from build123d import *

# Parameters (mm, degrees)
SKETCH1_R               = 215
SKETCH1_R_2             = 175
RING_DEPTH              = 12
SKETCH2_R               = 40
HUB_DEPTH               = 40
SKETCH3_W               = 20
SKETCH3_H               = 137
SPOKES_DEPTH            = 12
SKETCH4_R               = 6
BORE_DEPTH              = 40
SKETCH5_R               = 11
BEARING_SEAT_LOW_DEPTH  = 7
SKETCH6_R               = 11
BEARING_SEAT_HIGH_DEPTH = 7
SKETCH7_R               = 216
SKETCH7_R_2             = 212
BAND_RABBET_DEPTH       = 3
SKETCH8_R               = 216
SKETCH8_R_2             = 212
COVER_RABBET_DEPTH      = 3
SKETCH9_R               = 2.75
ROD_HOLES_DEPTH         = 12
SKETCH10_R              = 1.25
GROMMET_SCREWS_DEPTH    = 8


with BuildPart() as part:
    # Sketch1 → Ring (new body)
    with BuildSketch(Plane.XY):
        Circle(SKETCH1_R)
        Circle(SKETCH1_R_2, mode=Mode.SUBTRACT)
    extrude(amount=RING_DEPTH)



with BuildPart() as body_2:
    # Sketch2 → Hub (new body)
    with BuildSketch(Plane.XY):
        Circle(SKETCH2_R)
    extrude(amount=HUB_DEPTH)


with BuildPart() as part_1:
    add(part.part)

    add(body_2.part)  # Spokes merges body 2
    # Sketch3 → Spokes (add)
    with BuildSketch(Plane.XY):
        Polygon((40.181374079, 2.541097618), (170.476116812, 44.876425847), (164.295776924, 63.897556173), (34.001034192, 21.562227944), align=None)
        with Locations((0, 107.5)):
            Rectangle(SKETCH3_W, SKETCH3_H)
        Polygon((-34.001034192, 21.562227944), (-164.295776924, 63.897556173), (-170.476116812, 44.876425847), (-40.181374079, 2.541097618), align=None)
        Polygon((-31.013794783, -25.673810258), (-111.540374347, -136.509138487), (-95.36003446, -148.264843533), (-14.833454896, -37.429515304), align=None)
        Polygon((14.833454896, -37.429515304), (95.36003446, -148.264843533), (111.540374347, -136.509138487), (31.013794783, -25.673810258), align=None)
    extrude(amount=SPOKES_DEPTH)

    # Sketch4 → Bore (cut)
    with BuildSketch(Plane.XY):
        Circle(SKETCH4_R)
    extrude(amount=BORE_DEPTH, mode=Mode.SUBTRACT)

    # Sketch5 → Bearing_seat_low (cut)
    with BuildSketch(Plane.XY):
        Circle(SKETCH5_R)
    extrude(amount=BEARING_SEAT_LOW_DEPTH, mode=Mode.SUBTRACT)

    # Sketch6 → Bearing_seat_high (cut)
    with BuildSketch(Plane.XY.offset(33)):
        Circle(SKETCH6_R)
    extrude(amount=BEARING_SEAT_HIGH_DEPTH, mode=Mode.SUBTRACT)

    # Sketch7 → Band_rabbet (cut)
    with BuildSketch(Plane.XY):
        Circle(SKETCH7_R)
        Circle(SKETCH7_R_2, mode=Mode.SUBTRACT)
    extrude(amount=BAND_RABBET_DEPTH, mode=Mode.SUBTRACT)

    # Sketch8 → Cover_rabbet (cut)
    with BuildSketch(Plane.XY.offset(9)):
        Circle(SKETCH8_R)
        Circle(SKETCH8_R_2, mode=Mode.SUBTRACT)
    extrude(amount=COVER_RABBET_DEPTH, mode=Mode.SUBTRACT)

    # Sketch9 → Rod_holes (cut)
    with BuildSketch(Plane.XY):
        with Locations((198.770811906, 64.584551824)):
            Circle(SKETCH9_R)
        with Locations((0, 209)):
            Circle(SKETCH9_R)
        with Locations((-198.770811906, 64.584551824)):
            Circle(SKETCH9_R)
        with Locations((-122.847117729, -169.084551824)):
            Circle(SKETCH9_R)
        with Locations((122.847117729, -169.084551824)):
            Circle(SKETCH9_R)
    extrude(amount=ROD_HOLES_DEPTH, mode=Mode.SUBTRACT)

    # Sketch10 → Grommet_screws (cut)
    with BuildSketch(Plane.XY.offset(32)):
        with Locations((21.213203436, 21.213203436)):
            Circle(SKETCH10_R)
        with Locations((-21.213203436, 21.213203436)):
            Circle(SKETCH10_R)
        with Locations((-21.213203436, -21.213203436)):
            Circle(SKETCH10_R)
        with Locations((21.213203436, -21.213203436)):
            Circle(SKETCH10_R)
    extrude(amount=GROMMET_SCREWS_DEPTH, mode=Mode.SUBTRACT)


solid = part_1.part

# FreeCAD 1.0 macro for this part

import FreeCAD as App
import Part
import Sketcher
from FreeCAD import Vector
Q = App.Units.Quantity


def add_polygon(sketch, points):
    """Adds a closed chain of lines whose ends are joined by coincident constraints."""
    first, n = sketch.GeometryCount, len(points)
    for a, b in zip(points, points[1:] + points[:1]):
        sketch.addGeometry(Part.LineSegment(App.Vector(*a, 0), App.Vector(*b, 0)), False)
    for i in range(n):
        sketch.addConstraint(Sketcher.Constraint("Coincident", first + i, 2, first + (i + 1) % n, 1))

doc = App.newDocument("Part")
params = doc.addObject("Spreadsheet::Sheet", "Params")
for row, (alias, value) in enumerate([
    ("sketch1_diameter", "430 mm"),
    ("sketch1_diameter2", "350 mm"),
    ("pad1_length", "12 mm"),
    ("sketch2_diameter", "80 mm"),
    ("pad2_length", "40 mm"),
    ("sketch3_width", "20 mm"),
    ("sketch3_height", "137 mm"),
    ("sketch3_length", "137 mm"),
    ("sketch3_length2", "20 mm"),
    ("pad3_length", "12 mm"),
    ("sketch4_diameter", "12 mm"),
    ("pocket1_length", "40 mm"),
    ("sketch5_diameter", "22 mm"),
    ("pocket2_length", "7 mm"),
    ("sketch6_diameter", "22 mm"),
    ("pocket3_length", "7 mm"),
    ("sketch7_diameter", "432 mm"),
    ("sketch7_diameter2", "424 mm"),
    ("pocket4_length", "3 mm"),
    ("sketch8_diameter", "432 mm"),
    ("sketch8_diameter2", "424 mm"),
    ("pocket5_length", "3 mm"),
    ("sketch9_diameter", "5.5 mm"),
    ("pocket6_length", "12 mm"),
    ("sketch10_diameter", "2.5 mm"),
    ("pocket7_length", "8 mm"),
], start=1):
    params.set(f"A{row}", alias)
    params.set(f"B{row}", "=" + value)
    params.setAlias(f"B{row}", alias)

body = doc.addObject("PartDesign::Body", "Body")

# Sketch on XY plane
sketch1 = body.newObject("Sketcher::SketchObject", "Sketch")
sketch1.AttachmentSupport = (doc.getObject("XY_Plane"), [""])
sketch1.MapMode = "FlatFace"
sketch1.addGeometry([
    Part.Circle(Vector(0, 0, 0), Vector(0, 0, 1), 215),
    Part.Circle(Vector(0, 0, 0), Vector(0, 0, 1), 175),
], False)
sketch1.addConstraint([
    Sketcher.Constraint("Coincident", 0, 3, -1, 1),
    Sketcher.Constraint("Coincident", 1, 3, -1, 1),
    Sketcher.Constraint("Diameter", 0, 430.0),
    Sketcher.Constraint("Diameter", 1, 350.0),
])
sketch1.setExpression("Constraints[2]", "Params.sketch1_diameter")
sketch1.setExpression("Constraints[3]", "Params.sketch1_diameter2")
pad1 = body.newObject("PartDesign::Pad", "Pad")
pad1.Profile = sketch1
pad1.setExpression("Length", "Params.pad1_length")
body2 = doc.addObject("PartDesign::Body", "Body001")

# Sketch on XY plane
sketch2 = body2.newObject("Sketcher::SketchObject", "Sketch001")
sketch2.AttachmentSupport = (doc.getObject("XY_Plane001"), [""])
sketch2.MapMode = "FlatFace"
sketch2.addGeometry(Part.Circle(Vector(0, 0, 0), Vector(0, 0, 1), 40), False)
sketch2.addConstraint([
    Sketcher.Constraint("Coincident", 0, 3, -1, 1),
    Sketcher.Constraint("Diameter", 0, 80.0),
])
sketch2.setExpression("Constraints[1]", "Params.sketch2_diameter")
pad2 = body2.newObject("PartDesign::Pad", "Pad001")
pad2.Profile = sketch2
pad2.setExpression("Length", "Params.pad2_length")
body.AllowCompound = True
doc.recompute()

boolean = body.newObject("PartDesign::Boolean", "Boolean")
boolean.Type = "Fuse"
boolean.addObjects([body2])

# Sketch on XY plane
sketch3 = body.newObject("Sketcher::SketchObject", "Sketch002")
sketch3.AttachmentSupport = (doc.getObject("XY_Plane"), [""])
sketch3.MapMode = "FlatFace"
add_polygon(sketch3, [(40, 3), (170, 45), (164, 64), (34, 22)])  # lines 0-3
add_polygon(sketch3, [(-10, 176), (-10, 39), (10, 39), (10, 176)])  # lines 4-7
add_polygon(sketch3, [(-34, 22), (-164, 64), (-170, 45), (-40, 3)])  # lines 8-11
add_polygon(sketch3, [(-31, -26), (-112, -137), (-95, -148), (-15, -37)])  # lines 12-15
add_polygon(sketch3, [(15, -37), (95, -148), (112, -137), (31, -26)])  # lines 16-19
sketch3.addConstraint([
    Sketcher.Constraint("Vertical", 4),
    Sketcher.Constraint("Horizontal", 5),
    Sketcher.Constraint("Vertical", 6),
    Sketcher.Constraint("Horizontal", 7),
    Sketcher.Constraint("Symmetric", 1, 2, 8, 2, -2),
    Sketcher.Constraint("Symmetric", 0, 2, 9, 2, -2),
    Sketcher.Constraint("Symmetric", 3, 2, 10, 2, -2),
    Sketcher.Constraint("Symmetric", 2, 2, 11, 2, -2),
    Sketcher.Constraint("Symmetric", 13, 2, 16, 2, -2),
    Sketcher.Constraint("Symmetric", 12, 2, 17, 2, -2),
    Sketcher.Constraint("Symmetric", 15, 2, 18, 2, -2),
    Sketcher.Constraint("Symmetric", 14, 2, 19, 2, -2),
    Sketcher.Constraint("Perpendicular", 0, 1),
    Sketcher.Constraint("Perpendicular", 1, 2),
    Sketcher.Constraint("Perpendicular", 2, 3),
    Sketcher.Constraint("Perpendicular", 12, 13),
    Sketcher.Constraint("Perpendicular", 13, 14),
    Sketcher.Constraint("Perpendicular", 14, 15),
    Sketcher.Constraint("Equal", 10, 12),
    Sketcher.Constraint("Equal", 11, 13),
    Sketcher.Constraint("DistanceX", 5, 1, 5, 2, 20.0),
    Sketcher.Constraint("DistanceY", 4, 2, 4, 1, 137.0),
    Sketcher.Constraint("Angle", 0, Q("18 deg")),
    Sketcher.Constraint("Angle", 12, Q("-126 deg")),
    Sketcher.Constraint("Distance", 0, 137.0),
    Sketcher.Constraint("Distance", 1, 20.0),
    Sketcher.Constraint("DistanceX", 4, 2, -1, 1, 10.0),
    Sketcher.Constraint("DistanceY", -1, 1, 4, 2, 39.0),
    Sketcher.Constraint("DistanceX", 12, 2, 10, 2, 71.359),
    Sketcher.Constraint("DistanceY", 12, 2, -1, 1, 136.509138),
    Sketcher.Constraint("DistanceX", 8, 2, 2, 2, 198.296811),
    Sketcher.Constraint("DistanceY", 13, 2, 10, 2, 150.805941),
])
sketch3.setExpression("Constraints[40]", "Params.sketch3_width")
sketch3.setExpression("Constraints[41]", "Params.sketch3_height")
sketch3.setExpression("Constraints[44]", "Params.sketch3_length")
sketch3.setExpression("Constraints[45]", "Params.sketch3_length2")
pad3 = body.newObject("PartDesign::Pad", "Pad002")
pad3.Profile = sketch3
pad3.setExpression("Length", "Params.pad3_length")

# Sketch on XY plane
sketch4 = body.newObject("Sketcher::SketchObject", "Sketch003")
sketch4.AttachmentSupport = (doc.getObject("XY_Plane"), [""])
sketch4.MapMode = "FlatFace"
sketch4.addGeometry(Part.Circle(Vector(0, 0, 0), Vector(0, 0, 1), 6), False)
sketch4.addConstraint([
    Sketcher.Constraint("Coincident", 0, 3, -1, 1),
    Sketcher.Constraint("Diameter", 0, 12.0),
])
sketch4.setExpression("Constraints[1]", "Params.sketch4_diameter")
pocket1 = body.newObject("PartDesign::Pocket", "Pocket")
pocket1.Profile = sketch4
pocket1.setExpression("Length", "Params.pocket1_length")
pocket1.Reversed = True

# Sketch on XY plane
sketch5 = body.newObject("Sketcher::SketchObject", "Sketch004")
sketch5.AttachmentSupport = (doc.getObject("XY_Plane"), [""])
sketch5.MapMode = "FlatFace"
sketch5.addGeometry(Part.Circle(Vector(0, 0, 0), Vector(0, 0, 1), 11), False)
sketch5.addConstraint([
    Sketcher.Constraint("Coincident", 0, 3, -1, 1),
    Sketcher.Constraint("Diameter", 0, 22.0),
])
sketch5.setExpression("Constraints[1]", "Params.sketch5_diameter")
pocket2 = body.newObject("PartDesign::Pocket", "Pocket001")
pocket2.Profile = sketch5
pocket2.setExpression("Length", "Params.pocket2_length")
pocket2.Reversed = True

# Sketch on XY plane
sketch6 = body.newObject("Sketcher::SketchObject", "Sketch005")
sketch6.AttachmentSupport = (doc.getObject("XY_Plane"), [""])
sketch6.MapMode = "FlatFace"
sketch6.AttachmentOffset = App.Placement(Vector(0, 0, 33), App.Rotation())
sketch6.addGeometry(Part.Circle(Vector(0, 0, 0), Vector(0, 0, 1), 11), False)
sketch6.addConstraint([
    Sketcher.Constraint("Coincident", 0, 3, -1, 1),
    Sketcher.Constraint("Diameter", 0, 22.0),
])
sketch6.setExpression("Constraints[1]", "Params.sketch6_diameter")
pocket3 = body.newObject("PartDesign::Pocket", "Pocket002")
pocket3.Profile = sketch6
pocket3.setExpression("Length", "Params.pocket3_length")
pocket3.Reversed = True

# Sketch on XY plane
sketch7 = body.newObject("Sketcher::SketchObject", "Sketch006")
sketch7.AttachmentSupport = (doc.getObject("XY_Plane"), [""])
sketch7.MapMode = "FlatFace"
sketch7.addGeometry([
    Part.Circle(Vector(0, 0, 0), Vector(0, 0, 1), 216),
    Part.Circle(Vector(0, 0, 0), Vector(0, 0, 1), 212),
], False)
sketch7.addConstraint([
    Sketcher.Constraint("Coincident", 0, 3, -1, 1),
    Sketcher.Constraint("Coincident", 1, 3, -1, 1),
    Sketcher.Constraint("Diameter", 0, 432.0),
    Sketcher.Constraint("Diameter", 1, 424.0),
])
sketch7.setExpression("Constraints[2]", "Params.sketch7_diameter")
sketch7.setExpression("Constraints[3]", "Params.sketch7_diameter2")
pocket4 = body.newObject("PartDesign::Pocket", "Pocket003")
pocket4.Profile = sketch7
pocket4.setExpression("Length", "Params.pocket4_length")
pocket4.Reversed = True

# Sketch on XY plane
sketch8 = body.newObject("Sketcher::SketchObject", "Sketch007")
sketch8.AttachmentSupport = (doc.getObject("XY_Plane"), [""])
sketch8.MapMode = "FlatFace"
sketch8.AttachmentOffset = App.Placement(Vector(0, 0, 9), App.Rotation())
sketch8.addGeometry([
    Part.Circle(Vector(0, 0, 0), Vector(0, 0, 1), 216),
    Part.Circle(Vector(0, 0, 0), Vector(0, 0, 1), 212),
], False)
sketch8.addConstraint([
    Sketcher.Constraint("Coincident", 0, 3, -1, 1),
    Sketcher.Constraint("Coincident", 1, 3, -1, 1),
    Sketcher.Constraint("Diameter", 0, 432.0),
    Sketcher.Constraint("Diameter", 1, 424.0),
])
sketch8.setExpression("Constraints[2]", "Params.sketch8_diameter")
sketch8.setExpression("Constraints[3]", "Params.sketch8_diameter2")
pocket5 = body.newObject("PartDesign::Pocket", "Pocket004")
pocket5.Profile = sketch8
pocket5.setExpression("Length", "Params.pocket5_length")
pocket5.Reversed = True

# Sketch on XY plane
sketch9 = body.newObject("Sketcher::SketchObject", "Sketch008")
sketch9.AttachmentSupport = (doc.getObject("XY_Plane"), [""])
sketch9.MapMode = "FlatFace"
sketch9.addGeometry([
    Part.Circle(Vector(198.8, 64.6, 0), Vector(0, 0, 1), 2.8),  # 0
    Part.Circle(Vector(0, 209, 0), Vector(0, 0, 1), 2.8),  # 1
    Part.Circle(Vector(-198.8, 64.6, 0), Vector(0, 0, 1), 2.8),  # 2
    Part.Circle(Vector(-122.8, -169.1, 0), Vector(0, 0, 1), 2.8),  # 3
    Part.Circle(Vector(122.8, -169.1, 0), Vector(0, 0, 1), 2.8),  # 4
], False)
sketch9.addConstraint([
    Sketcher.Constraint("Equal", 0, 1),
    Sketcher.Constraint("Equal", 1, 2),
    Sketcher.Constraint("Equal", 2, 3),
    Sketcher.Constraint("Equal", 3, 4),
    Sketcher.Constraint("Symmetric", 0, 3, 2, 3, -2),
    Sketcher.Constraint("Symmetric", 3, 3, 4, 3, -2),
    Sketcher.Constraint("PointOnObject", 1, 3, -2),
    Sketcher.Constraint("Diameter", 0, 5.5),
    Sketcher.Constraint("DistanceY", -1, 1, 1, 3, 209.0),
    Sketcher.Constraint("DistanceX", -1, 1, 0, 3, 198.770812),
    Sketcher.Constraint("DistanceY", -1, 1, 0, 3, 64.584552),
    Sketcher.Constraint("DistanceY", 3, 3, -1, 1, 169.084552),
    Sketcher.Constraint("DistanceX", 3, 3, 0, 3, 321.61793),
])
sketch9.setExpression("Constraints[7]", "Params.sketch9_diameter")
pocket6 = body.newObject("PartDesign::Pocket", "Pocket005")
pocket6.Profile = sketch9
pocket6.setExpression("Length", "Params.pocket6_length")
pocket6.Reversed = True

# Sketch on XY plane
sketch10 = body.newObject("Sketcher::SketchObject", "Sketch009")
sketch10.AttachmentSupport = (doc.getObject("XY_Plane"), [""])
sketch10.MapMode = "FlatFace"
sketch10.AttachmentOffset = App.Placement(Vector(0, 0, 32), App.Rotation())
sketch10.addGeometry([
    Part.Circle(Vector(21.2, 21.2, 0), Vector(0, 0, 1), 1.2),
    Part.Circle(Vector(-21.2, 21.2, 0), Vector(0, 0, 1), 1.2),
    Part.Circle(Vector(-21.2, -21.2, 0), Vector(0, 0, 1), 1.2),
    Part.Circle(Vector(21.2, -21.2, 0), Vector(0, 0, 1), 1.2),
], False)
sketch10.addConstraint([
    Sketcher.Constraint("Equal", 0, 1),
    Sketcher.Constraint("Equal", 1, 2),
    Sketcher.Constraint("Equal", 2, 3),
    Sketcher.Constraint("Symmetric", 0, 3, 2, 3, -1, 1),
    Sketcher.Constraint("Symmetric", 1, 3, 3, 3, -1, 1),
    Sketcher.Constraint("Symmetric", 0, 3, 1, 3, -2),
    Sketcher.Constraint("Diameter", 0, 2.5),
    Sketcher.Constraint("DistanceX", -1, 1, 0, 3, 21.213203),
    Sketcher.Constraint("DistanceY", -1, 1, 0, 3, 21.213203),
])
sketch10.setExpression("Constraints[6]", "Params.sketch10_diameter")
pocket7 = body.newObject("PartDesign::Pocket", "Pocket006")
pocket7.Profile = sketch10
pocket7.setExpression("Length", "Params.pocket7_length")
pocket7.Reversed = True

doc.recompute()
